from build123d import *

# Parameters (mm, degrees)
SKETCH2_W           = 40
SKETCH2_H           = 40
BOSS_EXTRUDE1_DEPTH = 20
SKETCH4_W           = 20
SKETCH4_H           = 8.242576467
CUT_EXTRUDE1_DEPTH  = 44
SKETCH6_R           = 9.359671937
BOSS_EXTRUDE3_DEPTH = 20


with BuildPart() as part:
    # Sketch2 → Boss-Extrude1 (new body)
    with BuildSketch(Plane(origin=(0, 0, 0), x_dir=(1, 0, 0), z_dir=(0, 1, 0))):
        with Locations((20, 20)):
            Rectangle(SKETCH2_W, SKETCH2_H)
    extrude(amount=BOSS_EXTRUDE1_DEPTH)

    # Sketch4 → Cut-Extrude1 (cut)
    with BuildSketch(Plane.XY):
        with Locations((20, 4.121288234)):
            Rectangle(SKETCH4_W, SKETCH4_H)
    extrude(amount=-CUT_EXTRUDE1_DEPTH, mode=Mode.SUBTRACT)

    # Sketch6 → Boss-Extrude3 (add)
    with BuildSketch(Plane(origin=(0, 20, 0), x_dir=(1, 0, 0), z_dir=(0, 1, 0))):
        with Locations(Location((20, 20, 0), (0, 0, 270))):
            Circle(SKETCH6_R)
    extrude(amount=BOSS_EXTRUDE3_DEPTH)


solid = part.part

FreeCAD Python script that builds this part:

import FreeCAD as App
import Part
import Sketcher
from FreeCAD import Vector
Q = App.Units.Quantity

doc = App.newDocument("Part")
body = doc.addObject("PartDesign::Body", "Body")

# Sketch on XZ plane
sketch1 = body.newObject("Sketcher::SketchObject", "Sketch")
sketch1.AttachmentSupport = (doc.getObject("XZ_Plane"), [""])
sketch1.MapMode = "FlatFace"
sketch1.addGeometry(Part.LineSegment(Vector(0, -40, 0), Vector(0, 0, 0)), False)
sketch1.addGeometry(Part.LineSegment(Vector(0, 0, 0), Vector(40, 0, 0)), False)
sketch1.addGeometry(Part.LineSegment(Vector(40, 0, 0), Vector(40, -40, 0)), False)
sketch1.addGeometry(Part.LineSegment(Vector(40, -40, 0), Vector(0, -40, 0)), False)
sketch1.addConstraint(Sketcher.Constraint("Coincident", 0, 2, 1, 1))
sketch1.addConstraint(Sketcher.Constraint("Coincident", 1, 2, 2, 1))
sketch1.addConstraint(Sketcher.Constraint("Coincident", 2, 2, 3, 1))
sketch1.addConstraint(Sketcher.Constraint("Coincident", 3, 2, 0, 1))
sketch1.addConstraint(Sketcher.Constraint("Vertical", 0))
sketch1.addConstraint(Sketcher.Constraint("Horizontal", 1))
sketch1.addConstraint(Sketcher.Constraint("Vertical", 2))
sketch1.addConstraint(Sketcher.Constraint("Horizontal", 3))
sketch1.addConstraint(Sketcher.Constraint("Coincident", 0, 2, -1, 1))
sketch1.addConstraint(Sketcher.Constraint("Equal", 3, 0))
sketch1.addConstraint(Sketcher.Constraint("DistanceX", 1, 1, 1, 2, Q("40 mm")))
pad1 = body.newObject("PartDesign::Pad", "Pad")
pad1.Profile = sketch1
pad1.Length = 20
pad1.Reversed = True

# Sketch on XY plane
sketch2 = body.newObject("Sketcher::SketchObject", "Sketch001")
sketch2.AttachmentSupport = (doc.getObject("XY_Plane"), [""])
sketch2.MapMode = "FlatFace"
sketch2.addGeometry(Part.LineSegment(Vector(10, 8.242576, 0), Vector(10, 0, 0)), False)
sketch2.addGeometry(Part.LineSegment(Vector(10, 0, 0), Vector(30, 0, 0)), False)
sketch2.addGeometry(Part.LineSegment(Vector(30, 0, 0), Vector(30, 8.242576, 0)), False)
sketch2.addGeometry(Part.LineSegment(Vector(30, 8.242576, 0), Vector(10, 8.242576, 0)), False)
sketch2.addConstraint(Sketcher.Constraint("Coincident", 0, 2, 1, 1))
sketch2.addConstraint(Sketcher.Constraint("Coincident", 1, 2, 2, 1))
sketch2.addConstraint(Sketcher.Constraint("Coincident", 2, 2, 3, 1))
sketch2.addConstraint(Sketcher.Constraint("Coincident", 3, 2, 0, 1))
sketch2.addConstraint(Sketcher.Constraint("Vertical", 0))
sketch2.addConstraint(Sketcher.Constraint("Horizontal", 1))
sketch2.addConstraint(Sketcher.Constraint("Vertical", 2))
sketch2.addConstraint(Sketcher.Constraint("Horizontal", 3))
sketch2.addConstraint(Sketcher.Constraint("PointOnObject", 0, 2, -1))
sketch2.addConstraint(Sketcher.Constraint("DistanceX", 1, 1, 1, 2, Q("20 mm")))
sketch2.addConstraint(Sketcher.Constraint("DistanceX", -1, 1, 0, 2, Q("10 mm")))
sketch2.addConstraint(Sketcher.Constraint("DistanceY", 0, 2, 0, 1, Q("8.242576 mm")))
pocket1 = body.newObject("PartDesign::Pocket", "Pocket")
pocket1.Profile = sketch2
pocket1.Length = 44

# Sketch on XZ plane
sketch3 = body.newObject("Sketcher::SketchObject", "Sketch002")
sketch3.AttachmentSupport = (doc.getObject("XZ_Plane"), [""])
sketch3.MapMode = "FlatFace"
sketch3.AttachmentOffset = App.Placement(Vector(0, 0, -20), App.Rotation())
sketch3.addGeometry(Part.Circle(Vector(20, -20, 0), Vector(0, 0, 1), 9.359672), False)
sketch3.addConstraint(Sketcher.Constraint("DistanceX", -1, 1, 0, 3, Q("20 mm")))
sketch3.addConstraint(Sketcher.Constraint("DistanceY", 0, 3, -1, 1, Q("20 mm")))
sketch3.addConstraint(Sketcher.Constraint("Diameter", 0, Q("18.719344 mm")))
pad2 = body.newObject("PartDesign::Pad", "Pad001")
pad2.Profile = sketch3
pad2.Length = 20
pad2.Reversed = True

doc.recompute()
